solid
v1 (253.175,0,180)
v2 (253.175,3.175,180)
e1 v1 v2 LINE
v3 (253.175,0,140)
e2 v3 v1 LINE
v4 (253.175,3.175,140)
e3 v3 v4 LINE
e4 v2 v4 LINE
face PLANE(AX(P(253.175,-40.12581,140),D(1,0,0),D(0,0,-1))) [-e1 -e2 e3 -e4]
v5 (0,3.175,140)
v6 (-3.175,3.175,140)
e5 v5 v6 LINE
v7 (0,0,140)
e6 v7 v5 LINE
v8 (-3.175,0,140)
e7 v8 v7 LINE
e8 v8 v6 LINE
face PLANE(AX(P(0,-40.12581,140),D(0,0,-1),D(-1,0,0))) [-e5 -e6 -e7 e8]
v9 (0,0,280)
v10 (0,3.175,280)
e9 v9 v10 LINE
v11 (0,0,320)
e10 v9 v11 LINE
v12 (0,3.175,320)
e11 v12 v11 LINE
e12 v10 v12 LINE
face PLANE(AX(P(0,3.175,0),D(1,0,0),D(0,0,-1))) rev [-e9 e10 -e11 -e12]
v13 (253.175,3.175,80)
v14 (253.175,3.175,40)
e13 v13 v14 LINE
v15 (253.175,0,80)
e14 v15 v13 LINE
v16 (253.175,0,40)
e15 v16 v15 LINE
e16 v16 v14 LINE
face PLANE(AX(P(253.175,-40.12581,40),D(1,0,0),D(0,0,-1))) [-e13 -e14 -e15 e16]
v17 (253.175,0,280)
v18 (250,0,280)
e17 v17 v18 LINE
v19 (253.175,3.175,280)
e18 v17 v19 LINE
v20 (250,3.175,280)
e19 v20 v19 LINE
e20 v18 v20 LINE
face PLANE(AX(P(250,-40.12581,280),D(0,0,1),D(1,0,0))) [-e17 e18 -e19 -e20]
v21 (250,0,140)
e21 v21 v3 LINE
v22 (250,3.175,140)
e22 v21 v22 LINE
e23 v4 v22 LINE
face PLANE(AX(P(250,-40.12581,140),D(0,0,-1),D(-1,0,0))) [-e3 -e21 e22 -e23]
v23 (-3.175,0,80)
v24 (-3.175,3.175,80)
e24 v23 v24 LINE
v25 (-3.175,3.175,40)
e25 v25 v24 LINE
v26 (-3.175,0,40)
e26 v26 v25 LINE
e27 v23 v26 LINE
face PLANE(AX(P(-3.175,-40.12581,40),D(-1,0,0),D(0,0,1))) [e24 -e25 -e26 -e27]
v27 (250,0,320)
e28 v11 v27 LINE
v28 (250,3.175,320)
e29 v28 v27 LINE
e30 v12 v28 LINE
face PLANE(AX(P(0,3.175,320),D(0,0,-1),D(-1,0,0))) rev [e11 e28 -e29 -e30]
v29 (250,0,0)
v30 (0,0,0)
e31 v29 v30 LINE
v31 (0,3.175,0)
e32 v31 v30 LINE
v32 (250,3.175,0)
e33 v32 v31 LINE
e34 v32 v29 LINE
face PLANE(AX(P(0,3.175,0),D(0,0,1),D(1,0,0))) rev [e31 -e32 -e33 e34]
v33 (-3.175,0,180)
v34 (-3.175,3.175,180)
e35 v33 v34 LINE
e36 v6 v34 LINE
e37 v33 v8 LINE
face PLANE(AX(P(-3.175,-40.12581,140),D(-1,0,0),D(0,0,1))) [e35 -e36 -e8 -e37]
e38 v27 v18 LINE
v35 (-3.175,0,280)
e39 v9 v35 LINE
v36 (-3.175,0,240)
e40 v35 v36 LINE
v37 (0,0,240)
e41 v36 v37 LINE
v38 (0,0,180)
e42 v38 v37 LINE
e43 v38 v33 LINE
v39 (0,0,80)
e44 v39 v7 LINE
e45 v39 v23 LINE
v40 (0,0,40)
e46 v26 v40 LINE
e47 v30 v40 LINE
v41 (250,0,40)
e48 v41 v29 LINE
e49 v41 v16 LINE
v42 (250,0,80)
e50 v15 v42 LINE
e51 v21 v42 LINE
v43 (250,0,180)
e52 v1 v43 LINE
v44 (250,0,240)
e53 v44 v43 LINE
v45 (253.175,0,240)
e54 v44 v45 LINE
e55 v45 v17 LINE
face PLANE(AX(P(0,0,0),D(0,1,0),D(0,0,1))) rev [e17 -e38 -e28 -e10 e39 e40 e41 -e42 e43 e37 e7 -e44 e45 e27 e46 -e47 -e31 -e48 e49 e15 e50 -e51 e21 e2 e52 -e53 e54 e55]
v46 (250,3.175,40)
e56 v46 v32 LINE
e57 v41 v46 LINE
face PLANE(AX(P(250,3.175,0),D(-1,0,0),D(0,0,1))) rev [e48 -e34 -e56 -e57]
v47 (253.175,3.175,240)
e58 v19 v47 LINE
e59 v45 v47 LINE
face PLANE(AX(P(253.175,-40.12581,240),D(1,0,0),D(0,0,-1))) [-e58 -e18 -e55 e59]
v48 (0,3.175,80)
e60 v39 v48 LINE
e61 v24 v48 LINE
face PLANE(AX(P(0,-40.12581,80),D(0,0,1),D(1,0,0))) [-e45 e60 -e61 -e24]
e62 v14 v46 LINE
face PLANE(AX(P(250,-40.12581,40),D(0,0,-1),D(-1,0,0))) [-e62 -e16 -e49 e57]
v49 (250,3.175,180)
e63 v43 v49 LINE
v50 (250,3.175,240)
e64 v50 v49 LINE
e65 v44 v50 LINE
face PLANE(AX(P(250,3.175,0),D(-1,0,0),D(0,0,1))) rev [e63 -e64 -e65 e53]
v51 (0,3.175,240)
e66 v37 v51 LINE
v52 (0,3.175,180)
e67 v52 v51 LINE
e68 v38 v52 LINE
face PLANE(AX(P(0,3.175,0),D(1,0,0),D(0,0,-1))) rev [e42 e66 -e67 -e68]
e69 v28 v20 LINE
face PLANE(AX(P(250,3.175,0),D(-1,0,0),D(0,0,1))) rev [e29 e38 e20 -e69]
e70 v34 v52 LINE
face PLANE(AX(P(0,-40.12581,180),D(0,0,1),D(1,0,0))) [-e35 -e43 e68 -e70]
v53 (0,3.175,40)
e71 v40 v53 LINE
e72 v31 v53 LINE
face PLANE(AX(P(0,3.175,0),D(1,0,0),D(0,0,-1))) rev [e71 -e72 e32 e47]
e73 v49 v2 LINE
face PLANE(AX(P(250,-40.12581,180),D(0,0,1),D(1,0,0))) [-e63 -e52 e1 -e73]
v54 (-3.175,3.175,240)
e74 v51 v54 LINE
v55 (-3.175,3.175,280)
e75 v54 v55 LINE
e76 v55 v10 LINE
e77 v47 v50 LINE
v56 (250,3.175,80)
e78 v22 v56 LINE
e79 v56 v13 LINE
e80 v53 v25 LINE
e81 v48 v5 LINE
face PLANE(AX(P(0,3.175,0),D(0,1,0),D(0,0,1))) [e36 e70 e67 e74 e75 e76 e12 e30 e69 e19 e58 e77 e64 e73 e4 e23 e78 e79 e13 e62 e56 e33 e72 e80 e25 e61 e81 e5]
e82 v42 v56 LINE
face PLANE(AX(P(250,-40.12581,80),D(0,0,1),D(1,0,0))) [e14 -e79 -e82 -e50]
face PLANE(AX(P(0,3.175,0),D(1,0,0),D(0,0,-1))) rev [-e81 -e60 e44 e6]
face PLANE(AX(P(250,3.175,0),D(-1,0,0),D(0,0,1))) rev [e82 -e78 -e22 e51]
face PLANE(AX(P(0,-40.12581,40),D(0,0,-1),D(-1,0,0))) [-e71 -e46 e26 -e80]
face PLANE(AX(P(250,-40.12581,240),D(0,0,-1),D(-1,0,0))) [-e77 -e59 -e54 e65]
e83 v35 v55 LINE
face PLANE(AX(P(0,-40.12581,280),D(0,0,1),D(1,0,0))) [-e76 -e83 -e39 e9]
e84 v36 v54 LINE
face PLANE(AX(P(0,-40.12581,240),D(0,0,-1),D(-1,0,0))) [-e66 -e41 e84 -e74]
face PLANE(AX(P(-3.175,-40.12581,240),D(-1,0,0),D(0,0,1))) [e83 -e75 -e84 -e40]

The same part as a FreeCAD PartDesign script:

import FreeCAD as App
import Part
import Sketcher

V = App.Vector

doc = App.newDocument("Part")
params = doc.addObject("Spreadsheet::Sheet", "Params")
for row, (alias, value) in enumerate([
    ("sketch1_width", "250 mm"),
    ("sketch1_height", "320 mm"),
    ("pad1_length", "3.175 mm"),
    ("sketch2_height", "40 mm"),
    ("pad2_length", "3.175 mm"),
], start=1):
    params.set(f"A{row}", alias)
    params.set(f"B{row}", "=" + value)
    params.setAlias(f"B{row}", alias)

body = doc.addObject("PartDesign::Body", "Body")

# Sketch on XZ plane
sketch1 = doc.addObject("Sketcher::SketchObject", "Sketch")
body.addObject(sketch1)
sketch1.AttachmentSupport = (doc.XZ_Plane, [""])
sketch1.MapMode = "FlatFace"
sketch1.addGeometry([
    Part.LineSegment(V(0, 0, 0), V(0, 320, 0)),
    Part.LineSegment(V(0, 320, 0), V(250, 320, 0)),
    Part.LineSegment(V(250, 320, 0), V(250, 0, 0)),
    Part.LineSegment(V(250, 0, 0), V(0, 0, 0)),
], False)
sketch1.addConstraint([
    Sketcher.Constraint("Coincident", 0, 2, 1, 1),
    Sketcher.Constraint("Coincident", 1, 2, 2, 1),
    Sketcher.Constraint("Coincident", 2, 2, 3, 1),
    Sketcher.Constraint("Coincident", 3, 2, 0, 1),
    Sketcher.Constraint("Vertical", 0),
    Sketcher.Constraint("Horizontal", 1),
    Sketcher.Constraint("Vertical", 2),
    Sketcher.Constraint("Horizontal", 3),
    Sketcher.Constraint("Coincident", 3, 2, -1, 1),
    Sketcher.Constraint("DistanceX", 1, 1, 1, 2, 250.0),
    Sketcher.Constraint("DistanceY", 0, 1, 0, 2, 320.0),
])
sketch1.setExpression("Constraints[9]", "Params.sketch1_width")
sketch1.setExpression("Constraints[10]", "Params.sketch1_height")
pad1 = doc.addObject("PartDesign::Pad", "Pad")
body.addObject(pad1)
pad1.Profile = sketch1
pad1.setExpression("Length", "Params.pad1_length")
pad1.Reversed = True

# Sketch on XZ plane
sketch2 = doc.addObject("Sketcher::SketchObject", "Sketch001")
body.addObject(sketch2)
sketch2.AttachmentSupport = (doc.XZ_Plane, [""])
sketch2.MapMode = "FlatFace"
sketch2.AttachmentOffset = App.Placement(V(0, 0, -3.175), App.Rotation())
sketch2.addGeometry([
    Part.LineSegment(V(-3.2, 40, 0), V(-3.2, 80, 0)),  # 0
    Part.LineSegment(V(-3.2, 80, 0), V(0, 80, 0)),  # 1
    Part.LineSegment(V(0, 80, 0), V(0, 40, 0)),  # 2
    Part.LineSegment(V(0, 40, 0), V(-3.2, 40, 0)),  # 3
    Part.LineSegment(V(250, 40, 0), V(250, 80, 0)),  # 4
    Part.LineSegment(V(250, 80, 0), V(253.2, 80, 0)),  # 5
    Part.LineSegment(V(253.2, 80, 0), V(253.2, 40, 0)),  # 6
    Part.LineSegment(V(253.2, 40, 0), V(250, 40, 0)),  # 7
    Part.LineSegment(V(250, 140, 0), V(250, 180, 0)),  # 8
    Part.LineSegment(V(250, 180, 0), V(253.2, 180, 0)),  # 9
    Part.LineSegment(V(253.2, 180, 0), V(253.2, 140, 0)),  # 10
    Part.LineSegment(V(253.2, 140, 0), V(250, 140, 0)),  # 11
    Part.LineSegment(V(-3.2, 140, 0), V(-3.2, 180, 0)),  # 12
    Part.LineSegment(V(-3.2, 180, 0), V(0, 180, 0)),  # 13
    Part.LineSegment(V(0, 180, 0), V(0, 140, 0)),  # 14
    Part.LineSegment(V(0, 140, 0), V(-3.2, 140, 0)),  # 15
    Part.LineSegment(V(250, 240, 0), V(250, 280, 0)),  # 16
    Part.LineSegment(V(250, 280, 0), V(253.2, 280, 0)),  # 17
    Part.LineSegment(V(253.2, 280, 0), V(253.2, 240, 0)),  # 18
    Part.LineSegment(V(253.2, 240, 0), V(250, 240, 0)),  # 19
    Part.LineSegment(V(-3.2, 240, 0), V(-3.2, 280, 0)),  # 20
    Part.LineSegment(V(-3.2, 280, 0), V(0, 280, 0)),  # 21
    Part.LineSegment(V(0, 280, 0), V(0, 240, 0)),  # 22
    Part.LineSegment(V(0, 240, 0), V(-3.2, 240, 0)),  # 23
], False)
sketch2.addConstraint([
    Sketcher.Constraint("Coincident", 0, 2, 1, 1),
    Sketcher.Constraint("Coincident", 1, 2, 2, 1),
    Sketcher.Constraint("Coincident", 2, 2, 3, 1),
    Sketcher.Constraint("Coincident", 3, 2, 0, 1),
    Sketcher.Constraint("Coincident", 4, 2, 5, 1),
    Sketcher.Constraint("Coincident", 5, 2, 6, 1),
    Sketcher.Constraint("Coincident", 6, 2, 7, 1),
    Sketcher.Constraint("Coincident", 7, 2, 4, 1),
    Sketcher.Constraint("Coincident", 8, 2, 9, 1),
    Sketcher.Constraint("Coincident", 9, 2, 10, 1),
    Sketcher.Constraint("Coincident", 10, 2, 11, 1),
    Sketcher.Constraint("Coincident", 11, 2, 8, 1),
    Sketcher.Constraint("Coincident", 12, 2, 13, 1),
    Sketcher.Constraint("Coincident", 13, 2, 14, 1),
    Sketcher.Constraint("Coincident", 14, 2, 15, 1),
    Sketcher.Constraint("Coincident", 15, 2, 12, 1),
    Sketcher.Constraint("Coincident", 16, 2, 17, 1),
    Sketcher.Constraint("Coincident", 17, 2, 18, 1),
    Sketcher.Constraint("Coincident", 18, 2, 19, 1),
    Sketcher.Constraint("Coincident", 19, 2, 16, 1),
    Sketcher.Constraint("Coincident", 20, 2, 21, 1),
    Sketcher.Constraint("Coincident", 21, 2, 22, 1),
    Sketcher.Constraint("Coincident", 22, 2, 23, 1),
    Sketcher.Constraint("Coincident", 23, 2, 20, 1),
    Sketcher.Constraint("Vertical", 0),
    Sketcher.Constraint("Horizontal", 1),
    Sketcher.Constraint("Vertical", 2),
    Sketcher.Constraint("Horizontal", 3),
    Sketcher.Constraint("Vertical", 4),
    Sketcher.Constraint("Horizontal", 5),
    Sketcher.Constraint("Vertical", 6),
    Sketcher.Constraint("Horizontal", 7),
    Sketcher.Constraint("Vertical", 8),
    Sketcher.Constraint("Horizontal", 9),
    Sketcher.Constraint("Vertical", 10),
    Sketcher.Constraint("Horizontal", 11),
    Sketcher.Constraint("Vertical", 12),
    Sketcher.Constraint("Horizontal", 13),
    Sketcher.Constraint("Vertical", 14),
    Sketcher.Constraint("Horizontal", 15),
    Sketcher.Constraint("Vertical", 16),
    Sketcher.Constraint("Horizontal", 17),
    Sketcher.Constraint("Vertical", 18),
    Sketcher.Constraint("Horizontal", 19),
    Sketcher.Constraint("Vertical", 20),
    Sketcher.Constraint("Horizontal", 21),
    Sketcher.Constraint("Vertical", 22),
    Sketcher.Constraint("Horizontal", 23),
    Sketcher.Constraint("PointOnObject", 1, 2, -2),
    Sketcher.Constraint("PointOnObject", 13, 2, -2),
    Sketcher.Constraint("PointOnObject", 21, 2, -2),
    Sketcher.Constraint("Horizontal", 1, 2, 4, 2),
    Sketcher.Constraint("Horizontal", 3, 2, 6, 2),
    Sketcher.Constraint("Horizontal", 9, 2, 12, 2),
    Sketcher.Constraint("Horizontal", 11, 2, 14, 2),
    Sketcher.Constraint("Horizontal", 17, 2, 20, 2),
    Sketcher.Constraint("Horizontal", 19, 2, 22, 2),
    Sketcher.Constraint("Vertical", 7, 2, 8, 2),
    Sketcher.Constraint("Vertical", 6, 2, 9, 2),
    Sketcher.Constraint("Vertical", 3, 2, 12, 2),
    Sketcher.Constraint("Vertical", 11, 2, 16, 2),
    Sketcher.Constraint("Vertical", 10, 2, 17, 2),
    Sketcher.Constraint("Vertical", 15, 2, 20, 2),
    Sketcher.Constraint("Equal", 3, 5),
    Sketcher.Constraint("Equal", 6, 8),
    Sketcher.Constraint("Equal", 14, 16),
    Sketcher.Constraint("DistanceY", 0, 1, 0, 2, 40.0),
    Sketcher.Constraint("DistanceY", -1, 1, 0, 2, 80.0),
    Sketcher.Constraint("DistanceX", -1, 1, 4, 2, 250.0),
    Sketcher.Constraint("DistanceY", -1, 1, 8, 2, 180.0),
    Sketcher.Constraint("DistanceY", -1, 1, 16, 2, 280.0),
    Sketcher.Constraint("DistanceX", 1, 1, 1, 2, 3.175),
])
sketch2.setExpression("Constraints[66]", "Params.sketch2_height")
pad2 = doc.addObject("PartDesign::Pad", "Pad001")
body.addObject(pad2)
pad2.Profile = sketch2
pad2.setExpression("Length", "Params.pad2_length")

doc.recompute()
